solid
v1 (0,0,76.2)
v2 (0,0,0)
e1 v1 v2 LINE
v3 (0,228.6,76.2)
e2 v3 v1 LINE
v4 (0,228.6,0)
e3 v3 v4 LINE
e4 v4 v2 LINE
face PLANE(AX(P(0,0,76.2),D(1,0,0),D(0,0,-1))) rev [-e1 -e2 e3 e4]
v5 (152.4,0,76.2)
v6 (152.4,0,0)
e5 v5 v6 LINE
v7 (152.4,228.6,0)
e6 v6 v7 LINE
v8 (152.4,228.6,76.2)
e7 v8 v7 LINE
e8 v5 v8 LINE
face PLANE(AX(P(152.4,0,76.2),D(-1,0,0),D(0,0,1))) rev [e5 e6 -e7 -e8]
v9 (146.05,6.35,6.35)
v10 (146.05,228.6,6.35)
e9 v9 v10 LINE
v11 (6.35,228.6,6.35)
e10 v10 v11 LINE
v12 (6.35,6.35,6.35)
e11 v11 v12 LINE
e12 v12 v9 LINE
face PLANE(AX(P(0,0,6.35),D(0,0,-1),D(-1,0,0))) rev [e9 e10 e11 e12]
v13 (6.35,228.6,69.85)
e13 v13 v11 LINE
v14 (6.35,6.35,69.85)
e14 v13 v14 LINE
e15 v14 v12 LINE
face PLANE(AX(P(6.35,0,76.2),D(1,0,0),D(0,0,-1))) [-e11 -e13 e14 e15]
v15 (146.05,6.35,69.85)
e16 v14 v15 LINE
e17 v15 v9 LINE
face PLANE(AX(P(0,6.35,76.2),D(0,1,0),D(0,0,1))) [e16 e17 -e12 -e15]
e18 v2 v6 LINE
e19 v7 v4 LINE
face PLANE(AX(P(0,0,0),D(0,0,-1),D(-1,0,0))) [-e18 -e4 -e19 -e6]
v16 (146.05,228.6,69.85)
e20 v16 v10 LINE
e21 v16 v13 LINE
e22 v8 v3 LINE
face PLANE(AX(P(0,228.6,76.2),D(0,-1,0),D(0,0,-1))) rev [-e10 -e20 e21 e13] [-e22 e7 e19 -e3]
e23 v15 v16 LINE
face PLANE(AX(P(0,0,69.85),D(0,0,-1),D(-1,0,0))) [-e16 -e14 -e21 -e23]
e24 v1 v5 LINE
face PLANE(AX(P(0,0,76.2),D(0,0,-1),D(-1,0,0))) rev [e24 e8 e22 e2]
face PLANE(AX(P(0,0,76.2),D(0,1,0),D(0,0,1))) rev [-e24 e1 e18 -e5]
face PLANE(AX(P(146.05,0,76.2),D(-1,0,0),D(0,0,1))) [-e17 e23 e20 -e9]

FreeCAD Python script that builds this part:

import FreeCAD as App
import Part
import Sketcher
from FreeCAD import Vector
Q = App.Units.Quantity


def faces_at(feature, points):
    """Names of the faces that lie closest to the given points."""
    faces = feature.Shape.Faces
    near = lambda p: min(range(len(faces)), key=lambda i: faces[i].distToShape(Part.Vertex(*p))[0])
    return sorted({f"Face{near(p) + 1}" for p in points})

doc = App.newDocument("Part")
body = doc.addObject("PartDesign::Body", "Body")

sketch1 = doc.addObject("Sketcher::SketchObject", "Sketch")
body.addObject(sketch1)
sketch1.AttachmentSupport = (doc.XY_Plane, [""])
sketch1.MapMode = "FlatFace"
sketch1.addGeometry([
    Part.LineSegment(Vector(0, 229, 0), Vector(0, 0, 0)),
    Part.LineSegment(Vector(0, 0, 0), Vector(152, 0, 0)),
    Part.LineSegment(Vector(152, 0, 0), Vector(152, 229, 0)),
    Part.LineSegment(Vector(152, 229, 0), Vector(0, 229, 0)),
], False)
sketch1.addConstraint([
    Sketcher.Constraint("Coincident", 0, 2, 1, 1),
    Sketcher.Constraint("Coincident", 1, 2, 2, 1),
    Sketcher.Constraint("Coincident", 2, 2, 3, 1),
    Sketcher.Constraint("Coincident", 3, 2, 0, 1),
    Sketcher.Constraint("Vertical", 0),
    Sketcher.Constraint("Horizontal", 1),
    Sketcher.Constraint("Vertical", 2),
    Sketcher.Constraint("Horizontal", 3),
    Sketcher.Constraint("Coincident", 0, 2, -1, 1),
    Sketcher.Constraint("DistanceX", 1, 1, 1, 2, Q("6 in")),
    Sketcher.Constraint("DistanceY", 0, 2, 0, 1, Q("9 in")),
])
pad1 = doc.addObject("PartDesign::Pad", "Pad")
body.addObject(pad1)
pad1.Profile = sketch1
pad1.Length = Q("3 in")
doc.recompute()

thickness = doc.addObject("PartDesign::Thickness", "Thickness")
body.addObject(thickness)
thickness.Base = (pad1, faces_at(pad1, [(76.2, 228.6, 38.1)]))
thickness.Value = Q("0.25 in")
thickness.Reversed = True
thickness.Join = "Intersection"

doc.recompute()
